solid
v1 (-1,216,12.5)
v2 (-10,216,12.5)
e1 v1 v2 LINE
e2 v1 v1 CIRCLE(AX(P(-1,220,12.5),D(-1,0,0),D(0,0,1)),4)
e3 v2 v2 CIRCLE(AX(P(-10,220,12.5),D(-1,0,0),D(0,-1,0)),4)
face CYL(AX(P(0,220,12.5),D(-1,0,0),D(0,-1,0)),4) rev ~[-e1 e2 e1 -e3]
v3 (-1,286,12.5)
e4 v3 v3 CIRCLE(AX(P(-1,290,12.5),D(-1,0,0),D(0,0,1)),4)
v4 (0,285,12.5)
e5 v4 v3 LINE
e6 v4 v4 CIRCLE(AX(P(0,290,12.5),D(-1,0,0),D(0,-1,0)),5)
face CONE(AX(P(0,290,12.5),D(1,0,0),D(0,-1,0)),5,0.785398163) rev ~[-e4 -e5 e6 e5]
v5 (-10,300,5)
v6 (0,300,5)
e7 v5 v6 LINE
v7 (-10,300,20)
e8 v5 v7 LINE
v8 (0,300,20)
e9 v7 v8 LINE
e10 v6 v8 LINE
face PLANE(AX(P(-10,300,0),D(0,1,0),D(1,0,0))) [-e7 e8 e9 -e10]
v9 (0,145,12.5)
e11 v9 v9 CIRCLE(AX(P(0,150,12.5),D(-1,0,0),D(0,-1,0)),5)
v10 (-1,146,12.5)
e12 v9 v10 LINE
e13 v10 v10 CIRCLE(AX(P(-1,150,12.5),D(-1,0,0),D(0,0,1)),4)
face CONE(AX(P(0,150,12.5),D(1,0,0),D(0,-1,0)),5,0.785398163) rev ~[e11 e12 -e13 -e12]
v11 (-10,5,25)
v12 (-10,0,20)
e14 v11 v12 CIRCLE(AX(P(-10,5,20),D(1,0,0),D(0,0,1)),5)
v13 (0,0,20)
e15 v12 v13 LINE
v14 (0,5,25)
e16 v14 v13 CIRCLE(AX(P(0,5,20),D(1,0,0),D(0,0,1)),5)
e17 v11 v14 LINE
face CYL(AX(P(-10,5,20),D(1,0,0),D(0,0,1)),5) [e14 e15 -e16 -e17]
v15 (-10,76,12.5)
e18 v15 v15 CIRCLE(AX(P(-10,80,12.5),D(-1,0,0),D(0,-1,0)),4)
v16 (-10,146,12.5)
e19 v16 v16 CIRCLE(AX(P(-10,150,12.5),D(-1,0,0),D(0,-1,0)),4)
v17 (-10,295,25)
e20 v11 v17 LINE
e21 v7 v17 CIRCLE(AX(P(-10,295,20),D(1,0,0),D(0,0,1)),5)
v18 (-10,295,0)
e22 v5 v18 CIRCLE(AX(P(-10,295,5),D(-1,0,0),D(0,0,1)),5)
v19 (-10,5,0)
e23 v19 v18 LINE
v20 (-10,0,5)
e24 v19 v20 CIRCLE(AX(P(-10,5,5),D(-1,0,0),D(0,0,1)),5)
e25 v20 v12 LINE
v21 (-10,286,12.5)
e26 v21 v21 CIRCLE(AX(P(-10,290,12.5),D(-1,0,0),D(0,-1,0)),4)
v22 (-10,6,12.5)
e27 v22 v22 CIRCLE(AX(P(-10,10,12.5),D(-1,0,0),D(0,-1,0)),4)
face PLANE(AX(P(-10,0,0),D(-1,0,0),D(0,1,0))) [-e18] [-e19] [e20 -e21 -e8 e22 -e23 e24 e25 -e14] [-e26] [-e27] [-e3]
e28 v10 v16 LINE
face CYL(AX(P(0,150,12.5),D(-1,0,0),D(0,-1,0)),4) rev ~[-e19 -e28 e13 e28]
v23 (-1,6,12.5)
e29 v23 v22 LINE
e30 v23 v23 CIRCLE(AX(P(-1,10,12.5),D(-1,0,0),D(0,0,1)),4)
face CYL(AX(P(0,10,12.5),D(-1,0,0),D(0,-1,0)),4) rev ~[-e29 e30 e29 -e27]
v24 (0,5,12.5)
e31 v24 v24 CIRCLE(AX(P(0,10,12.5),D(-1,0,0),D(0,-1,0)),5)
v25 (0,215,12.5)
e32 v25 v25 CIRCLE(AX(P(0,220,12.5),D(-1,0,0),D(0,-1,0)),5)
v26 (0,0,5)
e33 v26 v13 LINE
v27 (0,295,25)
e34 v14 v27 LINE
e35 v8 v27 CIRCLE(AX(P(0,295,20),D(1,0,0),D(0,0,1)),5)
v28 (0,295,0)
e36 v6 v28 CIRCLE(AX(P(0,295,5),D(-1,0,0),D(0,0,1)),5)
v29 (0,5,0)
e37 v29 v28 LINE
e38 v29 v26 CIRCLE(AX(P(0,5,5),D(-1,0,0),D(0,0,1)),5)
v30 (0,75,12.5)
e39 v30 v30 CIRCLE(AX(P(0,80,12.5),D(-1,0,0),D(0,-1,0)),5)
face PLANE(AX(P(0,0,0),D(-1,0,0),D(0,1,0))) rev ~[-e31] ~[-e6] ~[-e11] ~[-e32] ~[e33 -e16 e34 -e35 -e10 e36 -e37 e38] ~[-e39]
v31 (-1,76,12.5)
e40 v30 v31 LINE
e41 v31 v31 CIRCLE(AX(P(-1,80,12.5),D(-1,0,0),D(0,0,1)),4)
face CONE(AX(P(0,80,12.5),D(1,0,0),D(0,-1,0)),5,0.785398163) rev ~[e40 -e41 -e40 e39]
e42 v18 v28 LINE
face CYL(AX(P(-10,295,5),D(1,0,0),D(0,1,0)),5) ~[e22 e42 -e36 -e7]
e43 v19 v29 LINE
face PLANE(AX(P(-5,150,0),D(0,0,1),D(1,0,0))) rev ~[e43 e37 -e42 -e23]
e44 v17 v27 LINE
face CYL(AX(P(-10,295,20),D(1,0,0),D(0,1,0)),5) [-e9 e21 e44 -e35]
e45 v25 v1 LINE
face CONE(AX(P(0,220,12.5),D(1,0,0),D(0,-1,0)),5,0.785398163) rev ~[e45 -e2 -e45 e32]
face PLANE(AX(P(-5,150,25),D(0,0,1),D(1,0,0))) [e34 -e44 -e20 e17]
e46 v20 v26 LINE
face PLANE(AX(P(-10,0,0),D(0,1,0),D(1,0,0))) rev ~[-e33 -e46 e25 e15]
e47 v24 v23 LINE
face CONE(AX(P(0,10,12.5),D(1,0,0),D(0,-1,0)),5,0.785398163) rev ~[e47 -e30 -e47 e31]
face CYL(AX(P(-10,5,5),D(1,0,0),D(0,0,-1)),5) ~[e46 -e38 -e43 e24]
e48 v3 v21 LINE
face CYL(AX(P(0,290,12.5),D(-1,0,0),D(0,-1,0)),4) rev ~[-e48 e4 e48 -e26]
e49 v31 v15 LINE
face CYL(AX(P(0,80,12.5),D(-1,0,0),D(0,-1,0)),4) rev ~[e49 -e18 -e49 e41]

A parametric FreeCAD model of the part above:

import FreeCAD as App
import Part
import Sketcher
from FreeCAD import Vector


def edges_at(feature, points):
    """Names of the edges that pass closest to the given points."""
    edges = feature.Shape.Edges
    near = lambda p: min(range(len(edges)), key=lambda i: edges[i].distToShape(Part.Vertex(*p))[0])
    return sorted({f"Edge{near(p) + 1}" for p in points})


def add_polygon(sketch, points):
    """Adds a closed chain of lines whose ends are joined by coincident constraints."""
    first, n = sketch.GeometryCount, len(points)
    for a, b in zip(points, points[1:] + points[:1]):
        sketch.addGeometry(Part.LineSegment(App.Vector(*a, 0), App.Vector(*b, 0)), False)
    for i in range(n):
        sketch.addConstraint(Sketcher.Constraint("Coincident", first + i, 2, first + (i + 1) % n, 1))

doc = App.newDocument("Part")
body = doc.addObject("PartDesign::Body", "Body")

# Sketch on XY plane
sketch1 = doc.addObject("Sketcher::SketchObject", "Sketch")
body.addObject(sketch1)
sketch1.AttachmentSupport = (doc.XY_Plane, [""])
sketch1.MapMode = "FlatFace"
add_polygon(sketch1, [(-10, 300), (-10, 0), (0, 0), (0, 300)])  # lines 0-3
sketch1.addConstraint([
    Sketcher.Constraint("Vertical", 0),
    Sketcher.Constraint("Horizontal", 1),
    Sketcher.Constraint("Vertical", 2),
    Sketcher.Constraint("Horizontal", 3),
    Sketcher.Constraint("Coincident", 1, 2, -1, 1),
    Sketcher.Constraint("DistanceX", 1, 1, 1, 2, 10.0),
    Sketcher.Constraint("DistanceY", 0, 2, 0, 1, 300.0),
])
pad1 = doc.addObject("PartDesign::Pad", "Pad")
body.addObject(pad1)
pad1.Profile = sketch1
pad1.Length = 25

# Sketch on YZ plane
sketch2 = doc.addObject("Sketcher::SketchObject", "Sketch001")
body.addObject(sketch2)
sketch2.AttachmentSupport = (doc.YZ_Plane, [""])
sketch2.MapMode = "FlatFace"
sketch2.addGeometry([
    Part.Circle(Vector(10, 12.5, 0), Vector(0, 0, 1), 4),  # 0
    Part.Circle(Vector(80, 12.5, 0), Vector(0, 0, 1), 4),  # 1
    Part.Circle(Vector(150, 12.5, 0), Vector(0, 0, 1), 4),  # 2
    Part.Circle(Vector(220, 12.5, 0), Vector(0, 0, 1), 4),  # 3
    Part.Circle(Vector(290, 12.5, 0), Vector(0, 0, 1), 4),  # 4
], False)
sketch2.addConstraint([
    Sketcher.Constraint("Equal", 0, 1),
    Sketcher.Constraint("Equal", 1, 2),
    Sketcher.Constraint("Equal", 2, 3),
    Sketcher.Constraint("Equal", 3, 4),
    Sketcher.Constraint("Horizontal", 0, 3, 1, 3),
    Sketcher.Constraint("Horizontal", 1, 3, 2, 3),
    Sketcher.Constraint("Horizontal", 2, 3, 3, 3),
    Sketcher.Constraint("Horizontal", 3, 3, 4, 3),
    Sketcher.Constraint("Diameter", 0, 8.0),
    Sketcher.Constraint("DistanceX", -1, 1, 0, 3, 10.0),
    Sketcher.Constraint("DistanceX", -1, 1, 1, 3, 80.0),
    Sketcher.Constraint("DistanceX", -1, 1, 2, 3, 150.0),
    Sketcher.Constraint("DistanceX", -1, 1, 3, 3, 220.0),
    Sketcher.Constraint("DistanceX", -1, 1, 4, 3, 290.0),
    Sketcher.Constraint("DistanceY", -1, 1, 0, 3, 12.5),
])
doc.recompute()
hole = doc.addObject("PartDesign::Hole", "Hole")
body.addObject(hole)
hole.Profile = sketch2
hole.ThreadType = "None"
hole.Diameter = 8
hole.DepthType = "ThroughAll"
hole.HoleCutType = "Countersink"
hole.HoleCutDiameter = 10
hole.HoleCutCountersinkAngle = 90
doc.recompute()

fillet = doc.addObject("PartDesign::Fillet", "Fillet")
body.addObject(fillet)
fillet.Base = (hole, edges_at(hole, [
    (-5, 0, 0),
    (-5, 300, 0),
    (-5, 0, 25),
    (-5, 300, 25),
]))
fillet.Radius = 5

doc.recompute()
